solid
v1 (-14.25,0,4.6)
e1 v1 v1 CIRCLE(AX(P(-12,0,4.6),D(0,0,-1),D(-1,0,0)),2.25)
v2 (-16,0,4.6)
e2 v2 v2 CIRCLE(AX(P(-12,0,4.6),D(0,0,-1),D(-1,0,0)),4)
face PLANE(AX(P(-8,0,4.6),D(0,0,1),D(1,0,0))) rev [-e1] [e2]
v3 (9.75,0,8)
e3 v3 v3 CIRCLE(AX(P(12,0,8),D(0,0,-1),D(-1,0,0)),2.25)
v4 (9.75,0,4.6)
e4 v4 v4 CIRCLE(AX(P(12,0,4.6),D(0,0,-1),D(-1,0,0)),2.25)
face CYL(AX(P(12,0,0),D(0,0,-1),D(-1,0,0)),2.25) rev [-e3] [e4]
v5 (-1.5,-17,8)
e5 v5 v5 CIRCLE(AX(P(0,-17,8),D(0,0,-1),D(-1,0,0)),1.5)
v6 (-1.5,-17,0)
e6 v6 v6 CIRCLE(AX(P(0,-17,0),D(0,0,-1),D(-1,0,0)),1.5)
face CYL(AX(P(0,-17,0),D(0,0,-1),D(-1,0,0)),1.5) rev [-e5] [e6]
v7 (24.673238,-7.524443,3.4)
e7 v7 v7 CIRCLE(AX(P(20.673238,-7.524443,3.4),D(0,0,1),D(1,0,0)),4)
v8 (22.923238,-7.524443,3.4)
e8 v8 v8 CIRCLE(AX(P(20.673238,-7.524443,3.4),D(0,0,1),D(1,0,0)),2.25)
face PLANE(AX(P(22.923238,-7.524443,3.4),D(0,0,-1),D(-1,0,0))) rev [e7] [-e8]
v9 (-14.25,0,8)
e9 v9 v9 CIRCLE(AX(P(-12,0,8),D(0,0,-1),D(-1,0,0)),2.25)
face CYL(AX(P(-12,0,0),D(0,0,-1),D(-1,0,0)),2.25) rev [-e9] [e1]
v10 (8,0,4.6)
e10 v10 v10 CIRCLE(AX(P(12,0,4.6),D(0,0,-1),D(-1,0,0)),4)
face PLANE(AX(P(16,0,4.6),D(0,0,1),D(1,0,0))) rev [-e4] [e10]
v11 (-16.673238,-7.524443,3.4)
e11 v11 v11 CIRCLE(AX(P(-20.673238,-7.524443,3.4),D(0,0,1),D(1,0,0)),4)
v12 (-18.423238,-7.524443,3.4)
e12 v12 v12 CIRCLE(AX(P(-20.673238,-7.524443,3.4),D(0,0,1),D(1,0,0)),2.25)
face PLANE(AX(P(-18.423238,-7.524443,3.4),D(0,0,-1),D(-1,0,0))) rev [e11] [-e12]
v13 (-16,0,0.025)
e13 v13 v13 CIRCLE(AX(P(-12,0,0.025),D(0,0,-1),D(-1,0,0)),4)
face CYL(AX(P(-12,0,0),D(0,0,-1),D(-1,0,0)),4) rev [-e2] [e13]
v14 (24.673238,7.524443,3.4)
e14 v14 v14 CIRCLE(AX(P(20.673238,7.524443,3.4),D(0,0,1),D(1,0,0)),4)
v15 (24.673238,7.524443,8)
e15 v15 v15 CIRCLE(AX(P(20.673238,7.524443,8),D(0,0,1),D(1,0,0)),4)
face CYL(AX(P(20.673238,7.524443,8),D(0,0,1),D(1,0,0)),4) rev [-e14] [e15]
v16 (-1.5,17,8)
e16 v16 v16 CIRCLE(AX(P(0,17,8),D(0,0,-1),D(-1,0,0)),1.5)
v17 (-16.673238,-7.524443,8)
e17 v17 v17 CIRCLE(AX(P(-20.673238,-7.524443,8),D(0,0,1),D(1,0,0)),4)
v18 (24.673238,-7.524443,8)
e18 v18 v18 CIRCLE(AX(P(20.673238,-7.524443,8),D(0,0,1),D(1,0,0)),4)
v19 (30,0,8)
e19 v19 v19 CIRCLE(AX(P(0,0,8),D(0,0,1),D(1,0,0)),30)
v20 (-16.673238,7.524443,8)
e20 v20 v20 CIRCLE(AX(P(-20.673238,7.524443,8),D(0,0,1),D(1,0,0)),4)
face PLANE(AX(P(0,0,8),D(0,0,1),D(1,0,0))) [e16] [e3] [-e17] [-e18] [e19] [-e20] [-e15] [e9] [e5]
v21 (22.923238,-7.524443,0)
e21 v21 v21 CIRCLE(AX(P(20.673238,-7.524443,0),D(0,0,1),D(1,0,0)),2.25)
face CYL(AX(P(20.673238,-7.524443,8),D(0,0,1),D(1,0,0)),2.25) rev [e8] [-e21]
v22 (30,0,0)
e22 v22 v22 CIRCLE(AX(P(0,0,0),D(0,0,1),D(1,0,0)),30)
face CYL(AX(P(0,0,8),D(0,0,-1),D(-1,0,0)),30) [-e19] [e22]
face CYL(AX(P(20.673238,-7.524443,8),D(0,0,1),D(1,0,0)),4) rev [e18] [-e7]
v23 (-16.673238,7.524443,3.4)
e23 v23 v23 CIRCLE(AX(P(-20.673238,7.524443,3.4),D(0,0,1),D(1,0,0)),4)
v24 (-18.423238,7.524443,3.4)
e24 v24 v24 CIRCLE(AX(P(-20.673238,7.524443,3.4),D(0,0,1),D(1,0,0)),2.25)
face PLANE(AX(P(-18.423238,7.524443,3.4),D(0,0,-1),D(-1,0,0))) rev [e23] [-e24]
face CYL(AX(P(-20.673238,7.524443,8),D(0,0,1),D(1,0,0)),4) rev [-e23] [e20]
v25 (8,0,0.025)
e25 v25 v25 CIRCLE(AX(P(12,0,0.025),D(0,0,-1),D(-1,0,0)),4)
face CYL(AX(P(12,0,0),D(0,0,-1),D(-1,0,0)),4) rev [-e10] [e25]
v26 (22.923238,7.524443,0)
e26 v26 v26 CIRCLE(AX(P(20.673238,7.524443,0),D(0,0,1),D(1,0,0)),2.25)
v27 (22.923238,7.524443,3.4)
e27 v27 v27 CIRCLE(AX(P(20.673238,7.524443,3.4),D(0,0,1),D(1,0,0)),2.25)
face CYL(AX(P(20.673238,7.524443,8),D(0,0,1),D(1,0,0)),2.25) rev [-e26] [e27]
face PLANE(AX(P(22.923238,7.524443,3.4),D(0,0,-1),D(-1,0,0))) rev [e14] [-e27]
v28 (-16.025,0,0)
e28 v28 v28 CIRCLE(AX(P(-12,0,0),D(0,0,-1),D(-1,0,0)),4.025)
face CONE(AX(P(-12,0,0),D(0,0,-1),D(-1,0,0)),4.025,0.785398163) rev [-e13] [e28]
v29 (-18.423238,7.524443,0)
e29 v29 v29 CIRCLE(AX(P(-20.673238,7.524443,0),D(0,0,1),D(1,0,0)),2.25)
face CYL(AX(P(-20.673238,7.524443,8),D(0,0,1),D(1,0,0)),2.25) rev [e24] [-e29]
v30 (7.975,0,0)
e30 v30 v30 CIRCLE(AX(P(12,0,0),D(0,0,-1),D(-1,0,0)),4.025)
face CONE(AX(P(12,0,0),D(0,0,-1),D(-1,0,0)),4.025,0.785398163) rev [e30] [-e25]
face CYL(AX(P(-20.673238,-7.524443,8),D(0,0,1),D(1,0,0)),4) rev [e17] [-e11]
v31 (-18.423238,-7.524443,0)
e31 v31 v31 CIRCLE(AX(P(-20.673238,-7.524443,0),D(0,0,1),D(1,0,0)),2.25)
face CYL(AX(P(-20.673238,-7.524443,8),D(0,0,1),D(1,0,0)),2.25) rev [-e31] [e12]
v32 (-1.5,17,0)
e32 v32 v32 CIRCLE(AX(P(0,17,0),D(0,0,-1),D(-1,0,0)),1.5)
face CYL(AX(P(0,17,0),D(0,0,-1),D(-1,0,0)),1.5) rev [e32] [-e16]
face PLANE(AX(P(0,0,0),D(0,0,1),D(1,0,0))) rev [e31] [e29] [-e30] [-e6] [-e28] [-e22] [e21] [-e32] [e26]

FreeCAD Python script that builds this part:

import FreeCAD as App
import Part
import Sketcher

V = App.Vector
Q = App.Units.Quantity

doc = App.newDocument("Part")
params = doc.addObject("Spreadsheet::Sheet", "Params")
for row, (alias, value) in enumerate([
    ("sketch1_diameter", "60 mm"),
    ("pad1_length", "8 mm"),
    ("sketch2_height", "8 mm"),
    ("sketch2_height2", "3.4 mm"),
    ("sketch2_width", "1.75 mm"),
    ("groove_angle", "360 deg"),
    ("linearpattern_pitch", "24 mm"),
    ("sketch3_diameter", "3 mm"),
    ("hole_diameter", "3 mm"),
    ("sketch4_diameter", "4.5 mm"),
    ("hole2_diameter", "4.5 mm"),
    ("hole2_cbore_diameter", "8 mm"),
    ("hole2_cbore_depth", "4.6 mm"),
], start=1):
    params.set(f"A{row}", alias)
    params.set(f"B{row}", "=" + value)
    params.setAlias(f"B{row}", alias)

body = doc.addObject("PartDesign::Body", "Body")

# Sketch on XY plane
sketch1 = doc.addObject("Sketcher::SketchObject", "Sketch")
body.addObject(sketch1)
sketch1.AttachmentSupport = (doc.XY_Plane, [""])
sketch1.MapMode = "FlatFace"
sketch1.addGeometry(Part.Circle(V(0, 0, 0), V(0, 0, 1), 30), False)
sketch1.addConstraint(Sketcher.Constraint("Coincident", 0, 3, -1, 1))
sketch1.addConstraint(Sketcher.Constraint("Diameter", 0, 60.0))
sketch1.setExpression("Constraints[1]", "Params.sketch1_diameter")
pad1 = doc.addObject("PartDesign::Pad", "Pad")
body.addObject(pad1)
pad1.Profile = sketch1
pad1.setExpression("Length", "Params.pad1_length")

# Sketch on YZ plane
sketch2 = doc.addObject("Sketcher::SketchObject", "Sketch001")
body.addObject(sketch2)
sketch2.AttachmentSupport = (doc.YZ_Plane, [""])
sketch2.MapMode = "FlatFace"
sketch2.AttachmentOffset = App.Placement(V(0, 0, 12), App.Rotation())
sketch2.addGeometry(Part.LineSegment(V(0, 8, 0), V(0, 0, 0)), False)
sketch2.addGeometry(Part.LineSegment(V(0, 0, 0), V(4.025, 0, 0)), False)
sketch2.addGeometry(Part.LineSegment(V(4.025, 0, 0), V(4, 0.025, 0)), False)
sketch2.addGeometry(Part.LineSegment(V(4, 0.025, 0), V(4, 4.6, 0)), False)
sketch2.addGeometry(Part.LineSegment(V(4, 4.6, 0), V(2.25, 4.6, 0)), False)
sketch2.addGeometry(Part.LineSegment(V(2.25, 4.6, 0), V(2.25, 8, 0)), False)
sketch2.addGeometry(Part.LineSegment(V(2.25, 8, 0), V(0, 8, 0)), False)
sketch2.addConstraint(Sketcher.Constraint("Coincident", 0, 2, 1, 1))
sketch2.addConstraint(Sketcher.Constraint("Coincident", 1, 2, 2, 1))
sketch2.addConstraint(Sketcher.Constraint("Coincident", 2, 2, 3, 1))
sketch2.addConstraint(Sketcher.Constraint("Coincident", 3, 2, 4, 1))
sketch2.addConstraint(Sketcher.Constraint("Coincident", 4, 2, 5, 1))
sketch2.addConstraint(Sketcher.Constraint("Coincident", 5, 2, 6, 1))
sketch2.addConstraint(Sketcher.Constraint("Coincident", 6, 2, 0, 1))
sketch2.addConstraint(Sketcher.Constraint("Vertical", 0))
sketch2.addConstraint(Sketcher.Constraint("Horizontal", 1))
sketch2.addConstraint(Sketcher.Constraint("Vertical", 3))
sketch2.addConstraint(Sketcher.Constraint("Horizontal", 4))
sketch2.addConstraint(Sketcher.Constraint("Vertical", 5))
sketch2.addConstraint(Sketcher.Constraint("Horizontal", 6))
sketch2.addConstraint(Sketcher.Constraint("Coincident", 0, 2, -1, 1))
sketch2.addConstraint(Sketcher.Constraint("DistanceY", 0, 2, 0, 1, 8.0))
sketch2.addConstraint(Sketcher.Constraint("Angle", 2, Q("135 deg")))
sketch2.addConstraint(Sketcher.Constraint("DistanceY", 5, 1, 5, 2, 3.4))
sketch2.addConstraint(Sketcher.Constraint("DistanceX", -1, 1, 2, 2, 4.0))
sketch2.addConstraint(Sketcher.Constraint("DistanceX", 4, 2, 4, 1, 1.75))
sketch2.addConstraint(Sketcher.Constraint("DistanceX", 1, 1, 1, 2, 4.025))
sketch2.setExpression("Constraints[14]", "Params.sketch2_height")
sketch2.setExpression("Constraints[16]", "Params.sketch2_height2")
sketch2.setExpression("Constraints[18]", "Params.sketch2_width")
groove = doc.addObject("PartDesign::Groove", "Groove")
body.addObject(groove)
groove.Profile = sketch2
groove.ReferenceAxis = (sketch2, ["V_Axis"])
groove.setExpression("Angle", "Params.groove_angle")
doc.recompute()

linearpattern = doc.addObject("PartDesign::LinearPattern", "LinearPattern")
body.addObject(linearpattern)
linearpattern.Originals = [groove]
linearpattern.Direction = (doc.X_Axis, [""])
linearpattern.Mode = "offset"
linearpattern.setExpression("Offset", "Params.linearpattern_pitch")
linearpattern.Occurrences = 2
linearpattern.Reversed = True
body.Tip = linearpattern

# Sketch on XY plane
sketch3 = doc.addObject("Sketcher::SketchObject", "Sketch002")
body.addObject(sketch3)
sketch3.AttachmentSupport = (doc.XY_Plane, [""])
sketch3.MapMode = "FlatFace"
sketch3.addGeometry(Part.Circle(V(0, -17, 0), V(0, 0, 1), 1.5), False)
sketch3.addGeometry(Part.Circle(V(0, 17, 0), V(0, 0, 1), 1.5), False)
sketch3.addConstraint(Sketcher.Constraint("Equal", 0, 1))
sketch3.addConstraint(Sketcher.Constraint("Symmetric", 0, 3, 1, 3, -1, 1))
sketch3.addConstraint(Sketcher.Constraint("PointOnObject", 0, 3, -2))
sketch3.addConstraint(Sketcher.Constraint("Diameter", 0, 3.0))
sketch3.addConstraint(Sketcher.Constraint("DistanceY", 0, 3, -1, 1, 17.0))
sketch3.setExpression("Constraints[3]", "Params.sketch3_diameter")
doc.recompute()
hole = doc.addObject("PartDesign::Hole", "Hole")
body.addObject(hole)
hole.Profile = sketch3
hole.ThreadType = "None"
hole.setExpression("Diameter", "Params.hole_diameter")
hole.DepthType = "ThroughAll"
hole.Reversed = True

# Sketch on XY plane
sketch4 = doc.addObject("Sketcher::SketchObject", "Sketch003")
body.addObject(sketch4)
sketch4.AttachmentSupport = (doc.XY_Plane, [""])
sketch4.MapMode = "FlatFace"
sketch4.AttachmentOffset = App.Placement(V(0, 0, 8), App.Rotation())
sketch4.addGeometry(Part.Circle(V(-20.7, 7.5, 0), V(0, 0, 1), 2.2), False)
sketch4.addGeometry(Part.Circle(V(-20.7, -7.5, 0), V(0, 0, 1), 2.2), False)
sketch4.addGeometry(Part.Circle(V(20.7, 7.5, 0), V(0, 0, 1), 2.2), False)
sketch4.addGeometry(Part.Circle(V(20.7, -7.5, 0), V(0, 0, 1), 2.2), False)
sketch4.addConstraint(Sketcher.Constraint("Equal", 0, 1))
sketch4.addConstraint(Sketcher.Constraint("Equal", 1, 2))
sketch4.addConstraint(Sketcher.Constraint("Equal", 2, 3))
sketch4.addConstraint(Sketcher.Constraint("Symmetric", 1, 3, 2, 3, -1, 1))
sketch4.addConstraint(Sketcher.Constraint("Symmetric", 0, 3, 3, 3, -1, 1))
sketch4.addConstraint(Sketcher.Constraint("Symmetric", 0, 3, 2, 3, -2))
sketch4.addConstraint(Sketcher.Constraint("Diameter", 0, 4.5))
sketch4.addConstraint(Sketcher.Constraint("DistanceX", 0, 3, -1, 1, 20.673238))
sketch4.addConstraint(Sketcher.Constraint("DistanceY", -1, 1, 0, 3, 7.524443))
sketch4.setExpression("Constraints[6]", "Params.sketch4_diameter")
doc.recompute()
hole2 = doc.addObject("PartDesign::Hole", "Hole001")
body.addObject(hole2)
hole2.Profile = sketch4
hole2.ThreadType = "None"
hole2.setExpression("Diameter", "Params.hole2_diameter")
hole2.DepthType = "ThroughAll"
hole2.HoleCutType = "Counterbore"
hole2.setExpression("HoleCutDiameter", "Params.hole2_cbore_diameter")
hole2.setExpression("HoleCutDepth", "Params.hole2_cbore_depth")

doc.recompute()
